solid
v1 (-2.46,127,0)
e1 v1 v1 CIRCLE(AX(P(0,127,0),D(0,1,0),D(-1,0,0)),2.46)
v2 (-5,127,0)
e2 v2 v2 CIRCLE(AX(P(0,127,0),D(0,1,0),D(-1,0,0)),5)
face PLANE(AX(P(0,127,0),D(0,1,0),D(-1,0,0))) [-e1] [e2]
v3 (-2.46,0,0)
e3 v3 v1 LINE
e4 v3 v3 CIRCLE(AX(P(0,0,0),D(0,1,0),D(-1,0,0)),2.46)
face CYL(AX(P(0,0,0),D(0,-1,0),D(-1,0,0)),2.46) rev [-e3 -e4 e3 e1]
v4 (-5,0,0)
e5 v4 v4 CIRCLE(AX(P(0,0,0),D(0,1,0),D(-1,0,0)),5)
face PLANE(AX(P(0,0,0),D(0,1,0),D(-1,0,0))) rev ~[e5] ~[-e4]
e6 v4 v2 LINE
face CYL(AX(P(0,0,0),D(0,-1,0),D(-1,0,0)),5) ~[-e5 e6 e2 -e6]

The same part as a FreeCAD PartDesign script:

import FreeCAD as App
import Part
import Sketcher

V = App.Vector
Q = App.Units.Quantity

doc = App.newDocument("Part")
body = doc.addObject("PartDesign::Body", "Body")

# Sketch on XZ plane
sketch1 = doc.addObject("Sketcher::SketchObject", "Sketch")
body.addObject(sketch1)
sketch1.AttachmentSupport = (doc.XZ_Plane, [""])
sketch1.MapMode = "FlatFace"
sketch1.addGeometry(Part.Circle(V(0, 0, 0), V(0, 0, 1), 5), False)
sketch1.addGeometry(Part.Circle(V(0, 0, 0), V(0, 0, 1), 2.5), False)
sketch1.addConstraint(Sketcher.Constraint("Coincident", 0, 3, -1, 1))
sketch1.addConstraint(Sketcher.Constraint("Coincident", 1, 3, -1, 1))
sketch1.addConstraint(Sketcher.Constraint("Diameter", 0, Q("0.3937 in")))
sketch1.addConstraint(Sketcher.Constraint("Diameter", 1, Q("0.1937 in")))
pad1 = doc.addObject("PartDesign::Pad", "Pad")
body.addObject(pad1)
pad1.Profile = sketch1
pad1.Length = Q("5 in")
pad1.Reversed = True

doc.recompute()
